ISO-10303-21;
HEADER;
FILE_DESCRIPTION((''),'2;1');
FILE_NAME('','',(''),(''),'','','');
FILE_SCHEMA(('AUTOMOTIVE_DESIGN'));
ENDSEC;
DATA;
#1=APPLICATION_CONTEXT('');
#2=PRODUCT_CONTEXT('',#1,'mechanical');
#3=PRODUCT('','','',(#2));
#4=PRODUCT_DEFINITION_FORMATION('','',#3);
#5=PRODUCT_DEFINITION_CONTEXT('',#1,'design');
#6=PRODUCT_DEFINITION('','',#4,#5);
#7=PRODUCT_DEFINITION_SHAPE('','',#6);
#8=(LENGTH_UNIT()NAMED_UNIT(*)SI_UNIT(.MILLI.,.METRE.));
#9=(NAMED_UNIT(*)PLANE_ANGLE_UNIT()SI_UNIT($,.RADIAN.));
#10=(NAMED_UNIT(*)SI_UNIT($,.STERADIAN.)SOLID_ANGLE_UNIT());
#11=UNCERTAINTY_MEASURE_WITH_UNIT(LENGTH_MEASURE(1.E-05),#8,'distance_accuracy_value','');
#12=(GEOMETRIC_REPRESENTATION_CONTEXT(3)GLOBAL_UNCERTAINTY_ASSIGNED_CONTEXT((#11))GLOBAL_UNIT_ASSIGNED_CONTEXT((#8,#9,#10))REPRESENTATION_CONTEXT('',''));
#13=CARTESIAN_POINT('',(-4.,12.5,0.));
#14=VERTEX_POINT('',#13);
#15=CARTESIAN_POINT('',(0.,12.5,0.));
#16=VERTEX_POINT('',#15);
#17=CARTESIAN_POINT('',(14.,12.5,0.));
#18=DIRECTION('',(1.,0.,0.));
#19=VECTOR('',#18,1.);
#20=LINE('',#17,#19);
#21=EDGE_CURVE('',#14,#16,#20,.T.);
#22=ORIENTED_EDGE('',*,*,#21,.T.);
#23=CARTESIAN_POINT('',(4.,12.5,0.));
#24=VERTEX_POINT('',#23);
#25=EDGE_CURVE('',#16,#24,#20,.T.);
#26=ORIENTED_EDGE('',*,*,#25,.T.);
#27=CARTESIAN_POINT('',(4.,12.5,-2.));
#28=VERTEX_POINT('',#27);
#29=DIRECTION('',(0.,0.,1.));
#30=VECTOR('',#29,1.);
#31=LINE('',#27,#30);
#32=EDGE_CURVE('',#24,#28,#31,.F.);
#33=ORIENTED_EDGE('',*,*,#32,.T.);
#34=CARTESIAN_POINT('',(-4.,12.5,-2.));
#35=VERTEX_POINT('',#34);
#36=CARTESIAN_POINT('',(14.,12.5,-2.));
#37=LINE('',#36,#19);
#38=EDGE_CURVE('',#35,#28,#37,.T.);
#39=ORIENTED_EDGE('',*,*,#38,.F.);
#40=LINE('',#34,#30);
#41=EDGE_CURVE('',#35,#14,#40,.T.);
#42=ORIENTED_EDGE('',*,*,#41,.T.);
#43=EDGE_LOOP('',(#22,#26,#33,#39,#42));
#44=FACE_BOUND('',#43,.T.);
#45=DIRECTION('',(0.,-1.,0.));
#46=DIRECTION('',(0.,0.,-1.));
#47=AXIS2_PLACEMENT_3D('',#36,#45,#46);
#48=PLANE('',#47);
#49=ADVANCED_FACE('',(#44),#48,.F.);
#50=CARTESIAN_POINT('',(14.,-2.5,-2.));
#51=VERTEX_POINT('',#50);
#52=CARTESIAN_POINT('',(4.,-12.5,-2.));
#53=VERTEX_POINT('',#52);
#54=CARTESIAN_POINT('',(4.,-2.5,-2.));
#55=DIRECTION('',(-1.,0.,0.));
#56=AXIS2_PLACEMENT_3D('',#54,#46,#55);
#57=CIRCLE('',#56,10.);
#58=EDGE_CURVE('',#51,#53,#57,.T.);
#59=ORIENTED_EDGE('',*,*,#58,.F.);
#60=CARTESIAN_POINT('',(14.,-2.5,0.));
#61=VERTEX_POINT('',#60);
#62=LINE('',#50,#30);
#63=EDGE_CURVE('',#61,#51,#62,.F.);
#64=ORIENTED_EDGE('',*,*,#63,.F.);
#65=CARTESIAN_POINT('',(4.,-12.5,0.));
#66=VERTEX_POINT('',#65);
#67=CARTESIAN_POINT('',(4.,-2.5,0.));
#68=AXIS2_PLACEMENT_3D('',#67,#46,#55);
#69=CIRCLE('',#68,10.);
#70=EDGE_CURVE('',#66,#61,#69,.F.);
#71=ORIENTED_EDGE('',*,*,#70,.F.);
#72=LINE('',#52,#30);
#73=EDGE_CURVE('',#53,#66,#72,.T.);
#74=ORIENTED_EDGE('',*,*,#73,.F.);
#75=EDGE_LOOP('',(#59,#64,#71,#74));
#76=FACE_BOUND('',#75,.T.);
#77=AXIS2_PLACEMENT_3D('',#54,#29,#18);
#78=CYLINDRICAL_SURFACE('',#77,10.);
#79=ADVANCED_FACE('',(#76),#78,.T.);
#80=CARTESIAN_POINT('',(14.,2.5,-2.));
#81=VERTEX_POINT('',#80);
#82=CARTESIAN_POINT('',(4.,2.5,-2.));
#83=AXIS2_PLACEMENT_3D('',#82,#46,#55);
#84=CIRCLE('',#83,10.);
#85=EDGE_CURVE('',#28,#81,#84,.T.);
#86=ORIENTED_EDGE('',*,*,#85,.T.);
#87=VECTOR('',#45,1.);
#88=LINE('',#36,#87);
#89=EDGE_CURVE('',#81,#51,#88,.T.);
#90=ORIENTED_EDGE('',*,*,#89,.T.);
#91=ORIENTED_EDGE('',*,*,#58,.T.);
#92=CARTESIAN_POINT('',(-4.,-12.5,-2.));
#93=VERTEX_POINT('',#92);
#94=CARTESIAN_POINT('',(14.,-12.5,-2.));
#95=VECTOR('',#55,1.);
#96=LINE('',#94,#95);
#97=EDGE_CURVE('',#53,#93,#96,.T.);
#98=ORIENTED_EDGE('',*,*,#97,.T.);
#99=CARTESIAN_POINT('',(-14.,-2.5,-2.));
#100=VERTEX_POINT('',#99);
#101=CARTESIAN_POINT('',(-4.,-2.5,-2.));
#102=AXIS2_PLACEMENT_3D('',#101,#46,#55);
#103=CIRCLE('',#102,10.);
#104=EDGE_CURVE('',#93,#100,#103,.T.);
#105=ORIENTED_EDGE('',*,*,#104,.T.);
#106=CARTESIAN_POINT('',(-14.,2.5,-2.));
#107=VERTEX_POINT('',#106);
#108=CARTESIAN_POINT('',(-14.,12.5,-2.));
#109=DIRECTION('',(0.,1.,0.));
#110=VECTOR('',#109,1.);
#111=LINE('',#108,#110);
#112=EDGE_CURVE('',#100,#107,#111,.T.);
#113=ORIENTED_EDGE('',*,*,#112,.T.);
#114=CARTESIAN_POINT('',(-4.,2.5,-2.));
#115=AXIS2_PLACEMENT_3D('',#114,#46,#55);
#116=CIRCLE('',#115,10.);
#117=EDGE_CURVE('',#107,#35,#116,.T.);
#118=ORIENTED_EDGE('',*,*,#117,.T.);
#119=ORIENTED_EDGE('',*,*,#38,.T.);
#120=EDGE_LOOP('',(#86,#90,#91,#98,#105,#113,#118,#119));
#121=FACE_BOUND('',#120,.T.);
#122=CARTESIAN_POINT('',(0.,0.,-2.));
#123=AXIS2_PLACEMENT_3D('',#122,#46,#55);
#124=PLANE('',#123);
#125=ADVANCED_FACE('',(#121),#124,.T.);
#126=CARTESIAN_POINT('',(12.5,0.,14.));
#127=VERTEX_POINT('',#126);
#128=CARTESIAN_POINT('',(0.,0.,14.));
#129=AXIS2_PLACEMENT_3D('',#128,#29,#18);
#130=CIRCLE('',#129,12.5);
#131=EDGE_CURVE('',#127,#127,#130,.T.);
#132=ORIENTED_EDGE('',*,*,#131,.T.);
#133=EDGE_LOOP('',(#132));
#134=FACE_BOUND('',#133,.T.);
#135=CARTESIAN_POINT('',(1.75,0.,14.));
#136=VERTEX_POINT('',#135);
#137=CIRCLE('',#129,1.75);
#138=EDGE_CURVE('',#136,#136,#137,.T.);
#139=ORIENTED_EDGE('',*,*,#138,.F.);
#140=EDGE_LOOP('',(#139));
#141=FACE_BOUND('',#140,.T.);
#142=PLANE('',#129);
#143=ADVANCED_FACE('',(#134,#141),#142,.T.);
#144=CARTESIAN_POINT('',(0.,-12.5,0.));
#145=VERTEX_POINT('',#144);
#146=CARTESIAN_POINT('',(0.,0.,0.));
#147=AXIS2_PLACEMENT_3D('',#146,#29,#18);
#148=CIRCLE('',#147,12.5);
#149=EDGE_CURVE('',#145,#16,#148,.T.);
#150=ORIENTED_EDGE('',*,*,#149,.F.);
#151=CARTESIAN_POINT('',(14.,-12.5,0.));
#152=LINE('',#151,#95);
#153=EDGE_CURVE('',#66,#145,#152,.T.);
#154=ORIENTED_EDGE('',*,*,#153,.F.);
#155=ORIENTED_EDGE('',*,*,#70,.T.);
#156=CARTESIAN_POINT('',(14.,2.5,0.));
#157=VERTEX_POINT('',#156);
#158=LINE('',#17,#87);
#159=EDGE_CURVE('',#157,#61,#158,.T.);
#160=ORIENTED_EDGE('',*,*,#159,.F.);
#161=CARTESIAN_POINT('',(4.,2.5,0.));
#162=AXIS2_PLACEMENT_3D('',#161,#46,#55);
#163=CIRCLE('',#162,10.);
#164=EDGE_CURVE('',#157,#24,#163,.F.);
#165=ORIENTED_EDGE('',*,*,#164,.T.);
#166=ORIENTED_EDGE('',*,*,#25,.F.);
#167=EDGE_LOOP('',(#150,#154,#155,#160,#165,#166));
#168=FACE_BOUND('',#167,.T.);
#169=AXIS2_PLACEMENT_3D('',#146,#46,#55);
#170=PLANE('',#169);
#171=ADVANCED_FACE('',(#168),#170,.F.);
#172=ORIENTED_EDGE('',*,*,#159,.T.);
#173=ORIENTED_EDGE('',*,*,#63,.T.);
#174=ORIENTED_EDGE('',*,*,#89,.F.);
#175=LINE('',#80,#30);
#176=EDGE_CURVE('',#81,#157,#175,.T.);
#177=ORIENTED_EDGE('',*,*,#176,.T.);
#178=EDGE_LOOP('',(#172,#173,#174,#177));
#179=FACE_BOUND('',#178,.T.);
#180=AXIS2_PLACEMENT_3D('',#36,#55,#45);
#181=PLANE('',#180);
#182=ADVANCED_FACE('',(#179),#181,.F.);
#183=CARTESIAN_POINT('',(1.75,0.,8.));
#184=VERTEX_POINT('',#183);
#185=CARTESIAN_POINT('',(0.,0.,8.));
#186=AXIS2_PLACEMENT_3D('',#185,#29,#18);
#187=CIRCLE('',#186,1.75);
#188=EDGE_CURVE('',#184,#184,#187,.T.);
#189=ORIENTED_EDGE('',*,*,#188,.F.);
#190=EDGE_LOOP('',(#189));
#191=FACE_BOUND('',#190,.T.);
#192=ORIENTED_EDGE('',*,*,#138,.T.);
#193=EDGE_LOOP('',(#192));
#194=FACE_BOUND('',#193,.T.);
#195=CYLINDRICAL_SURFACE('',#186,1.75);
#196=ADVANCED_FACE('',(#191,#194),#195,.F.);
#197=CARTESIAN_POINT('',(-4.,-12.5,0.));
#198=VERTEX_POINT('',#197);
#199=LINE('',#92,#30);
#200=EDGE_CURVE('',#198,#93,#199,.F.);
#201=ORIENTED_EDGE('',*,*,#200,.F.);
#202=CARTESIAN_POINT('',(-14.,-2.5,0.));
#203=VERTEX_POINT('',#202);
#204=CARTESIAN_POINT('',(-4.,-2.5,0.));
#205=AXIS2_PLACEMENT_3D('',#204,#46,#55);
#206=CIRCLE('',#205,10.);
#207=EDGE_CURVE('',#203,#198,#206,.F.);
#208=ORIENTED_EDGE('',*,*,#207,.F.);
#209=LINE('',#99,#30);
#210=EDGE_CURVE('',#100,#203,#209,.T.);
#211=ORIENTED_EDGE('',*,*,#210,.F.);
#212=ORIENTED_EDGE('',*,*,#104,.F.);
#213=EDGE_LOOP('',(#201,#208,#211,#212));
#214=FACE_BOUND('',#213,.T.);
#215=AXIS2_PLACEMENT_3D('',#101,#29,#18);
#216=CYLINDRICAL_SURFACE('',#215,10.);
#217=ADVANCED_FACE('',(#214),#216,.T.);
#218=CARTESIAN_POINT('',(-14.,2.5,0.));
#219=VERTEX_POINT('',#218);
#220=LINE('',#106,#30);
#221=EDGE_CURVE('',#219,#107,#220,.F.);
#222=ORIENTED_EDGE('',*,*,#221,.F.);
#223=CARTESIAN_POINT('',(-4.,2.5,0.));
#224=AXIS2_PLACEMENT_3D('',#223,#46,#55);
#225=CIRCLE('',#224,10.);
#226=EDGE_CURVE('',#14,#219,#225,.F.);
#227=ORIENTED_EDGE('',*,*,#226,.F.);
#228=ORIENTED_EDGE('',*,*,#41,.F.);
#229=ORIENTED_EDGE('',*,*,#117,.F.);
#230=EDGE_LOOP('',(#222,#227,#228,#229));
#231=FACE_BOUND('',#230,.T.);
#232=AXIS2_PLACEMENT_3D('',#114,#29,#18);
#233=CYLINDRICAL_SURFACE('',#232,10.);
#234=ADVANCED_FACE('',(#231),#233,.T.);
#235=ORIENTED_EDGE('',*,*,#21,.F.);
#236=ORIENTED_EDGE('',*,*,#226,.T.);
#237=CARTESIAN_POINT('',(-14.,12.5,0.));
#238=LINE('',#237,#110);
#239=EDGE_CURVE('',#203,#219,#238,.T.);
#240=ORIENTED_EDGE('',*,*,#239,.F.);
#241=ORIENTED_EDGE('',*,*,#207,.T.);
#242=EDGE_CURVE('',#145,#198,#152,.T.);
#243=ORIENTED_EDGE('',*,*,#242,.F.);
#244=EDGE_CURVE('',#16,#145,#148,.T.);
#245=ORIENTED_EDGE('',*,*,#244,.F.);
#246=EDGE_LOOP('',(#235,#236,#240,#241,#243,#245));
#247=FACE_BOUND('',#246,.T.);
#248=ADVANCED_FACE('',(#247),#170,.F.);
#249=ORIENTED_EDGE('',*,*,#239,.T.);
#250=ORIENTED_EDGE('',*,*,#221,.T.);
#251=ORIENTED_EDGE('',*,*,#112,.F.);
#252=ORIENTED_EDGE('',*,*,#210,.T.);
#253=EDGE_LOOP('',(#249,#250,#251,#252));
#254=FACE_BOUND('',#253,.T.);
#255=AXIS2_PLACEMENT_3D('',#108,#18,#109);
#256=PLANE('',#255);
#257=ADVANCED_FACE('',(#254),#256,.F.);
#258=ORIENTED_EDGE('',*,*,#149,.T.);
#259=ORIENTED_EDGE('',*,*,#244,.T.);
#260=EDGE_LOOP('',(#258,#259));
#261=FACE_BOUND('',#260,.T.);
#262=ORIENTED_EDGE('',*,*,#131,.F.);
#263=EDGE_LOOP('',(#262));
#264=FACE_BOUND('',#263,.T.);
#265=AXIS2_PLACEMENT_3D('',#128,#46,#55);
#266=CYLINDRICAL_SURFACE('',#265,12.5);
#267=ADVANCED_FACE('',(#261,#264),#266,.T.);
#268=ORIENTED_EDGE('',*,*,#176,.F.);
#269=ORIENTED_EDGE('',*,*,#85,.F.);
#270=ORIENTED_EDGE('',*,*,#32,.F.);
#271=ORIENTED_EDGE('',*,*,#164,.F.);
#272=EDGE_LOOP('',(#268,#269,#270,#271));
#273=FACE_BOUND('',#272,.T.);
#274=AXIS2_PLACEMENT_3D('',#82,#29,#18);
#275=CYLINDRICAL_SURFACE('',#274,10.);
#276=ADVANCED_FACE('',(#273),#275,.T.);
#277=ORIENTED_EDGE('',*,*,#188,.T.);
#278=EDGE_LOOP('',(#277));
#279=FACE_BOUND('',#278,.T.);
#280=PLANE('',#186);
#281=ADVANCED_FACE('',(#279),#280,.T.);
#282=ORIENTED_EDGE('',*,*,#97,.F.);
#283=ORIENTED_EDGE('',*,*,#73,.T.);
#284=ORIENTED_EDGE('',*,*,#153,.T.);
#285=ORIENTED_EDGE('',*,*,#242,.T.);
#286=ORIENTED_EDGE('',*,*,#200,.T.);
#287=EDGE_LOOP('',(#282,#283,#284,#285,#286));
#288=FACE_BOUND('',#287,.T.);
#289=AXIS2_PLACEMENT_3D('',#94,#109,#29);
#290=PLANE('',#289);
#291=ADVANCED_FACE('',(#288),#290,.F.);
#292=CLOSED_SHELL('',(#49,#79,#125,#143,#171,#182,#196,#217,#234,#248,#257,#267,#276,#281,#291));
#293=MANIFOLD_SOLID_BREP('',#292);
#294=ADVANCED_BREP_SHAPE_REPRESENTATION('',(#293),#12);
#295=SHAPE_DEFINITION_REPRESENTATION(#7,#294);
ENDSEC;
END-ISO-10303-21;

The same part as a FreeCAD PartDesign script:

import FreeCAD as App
import Part
import Sketcher
from FreeCAD import Vector
Q = App.Units.Quantity


def edges_at(feature, points):
    """Names of the edges that pass closest to the given points."""
    edges = feature.Shape.Edges
    near = lambda p: min(range(len(edges)), key=lambda i: edges[i].distToShape(Part.Vertex(*p))[0])
    return sorted({f"Edge{near(p) + 1}" for p in points})

doc = App.newDocument("Part")
params = doc.addObject("Spreadsheet::Sheet", "Params")
for row, (alias, value) in enumerate([
    ("sketch1_diameter", "25 mm"),
    ("pad1_length", "14 mm"),
    ("sketch2_diameter", "3.5 mm"),
    ("pocket1_length", "6 mm"),
    ("sketch3_width", "28 mm"),
    ("sketch3_height", "25 mm"),
    ("pad2_length", "2 mm"),
    ("fillet_radius", "10 mm"),
], start=1):
    params.set(f"A{row}", alias)
    params.set(f"B{row}", "=" + value)
    params.setAlias(f"B{row}", alias)

body = doc.addObject("PartDesign::Body", "Body")

# Sketch on XY plane
sketch1 = doc.addObject("Sketcher::SketchObject", "Sketch")
body.addObject(sketch1)
sketch1.AttachmentSupport = (doc.XY_Plane, [""])
sketch1.MapMode = "FlatFace"
sketch1.addGeometry(Part.Circle(Vector(0, 0, 0), Vector(0, 0, 1), 12.5), False)
sketch1.addConstraint([
    Sketcher.Constraint("Coincident", 0, 3, -1, 1),
    Sketcher.Constraint("Diameter", 0, Q("25 mm")),
])
sketch1.setExpression("Constraints[1]", "Params.sketch1_diameter")
pad1 = doc.addObject("PartDesign::Pad", "Pad")
body.addObject(pad1)
pad1.Profile = sketch1
pad1.setExpression("Length", "Params.pad1_length")

# Sketch on XY plane
sketch2 = doc.addObject("Sketcher::SketchObject", "Sketch001")
body.addObject(sketch2)
sketch2.AttachmentSupport = (doc.XY_Plane, [""])
sketch2.MapMode = "FlatFace"
sketch2.AttachmentOffset = App.Placement(Vector(0, 0, 14), App.Rotation())
sketch2.addGeometry(Part.Circle(Vector(0, 0, 0), Vector(0, 0, 1), 1.75), False)
sketch2.addConstraint([
    Sketcher.Constraint("Coincident", 0, 3, -1, 1),
    Sketcher.Constraint("Diameter", 0, Q("3.5 mm")),
])
sketch2.setExpression("Constraints[1]", "Params.sketch2_diameter")
pocket1 = doc.addObject("PartDesign::Pocket", "Pocket")
body.addObject(pocket1)
pocket1.Profile = sketch2
pocket1.setExpression("Length", "Params.pocket1_length")

# Sketch on XY plane
sketch3 = doc.addObject("Sketcher::SketchObject", "Sketch002")
body.addObject(sketch3)
sketch3.AttachmentSupport = (doc.XY_Plane, [""])
sketch3.MapMode = "FlatFace"
sketch3.addGeometry([
    Part.LineSegment(Vector(14, 12.5, 0), Vector(14, -12.5, 0)),
    Part.LineSegment(Vector(14, -12.5, 0), Vector(-14, -12.5, 0)),
    Part.LineSegment(Vector(-14, -12.5, 0), Vector(-14, 12.5, 0)),
    Part.LineSegment(Vector(-14, 12.5, 0), Vector(14, 12.5, 0)),
], False)
sketch3.addConstraint([
    Sketcher.Constraint("Coincident", 0, 2, 1, 1),
    Sketcher.Constraint("Coincident", 1, 2, 2, 1),
    Sketcher.Constraint("Coincident", 2, 2, 3, 1),
    Sketcher.Constraint("Coincident", 3, 2, 0, 1),
    Sketcher.Constraint("Vertical", 0),
    Sketcher.Constraint("Horizontal", 1),
    Sketcher.Constraint("Vertical", 2),
    Sketcher.Constraint("Horizontal", 3),
    Sketcher.Constraint("Symmetric", 0, 2, 2, 2, -1, 1),
    Sketcher.Constraint("DistanceX", 1, 2, 1, 1, Q("28 mm")),
    Sketcher.Constraint("DistanceY", 0, 2, 0, 1, Q("25 mm")),
])
sketch3.setExpression("Constraints[9]", "Params.sketch3_width")
sketch3.setExpression("Constraints[10]", "Params.sketch3_height")
pad2 = doc.addObject("PartDesign::Pad", "Pad001")
body.addObject(pad2)
pad2.Profile = sketch3
pad2.setExpression("Length", "Params.pad2_length")
pad2.Reversed = True
doc.recompute()

fillet = doc.addObject("PartDesign::Fillet", "Fillet")
body.addObject(fillet)
fillet.Base = (pad2, edges_at(pad2, [
    (14, 12.5, -1),
    (14, -12.5, -1),
    (-14, -12.5, -1),
    (-14, 12.5, -1),
]))
fillet.setExpression("Radius", "Params.fillet_radius")

doc.recompute()
